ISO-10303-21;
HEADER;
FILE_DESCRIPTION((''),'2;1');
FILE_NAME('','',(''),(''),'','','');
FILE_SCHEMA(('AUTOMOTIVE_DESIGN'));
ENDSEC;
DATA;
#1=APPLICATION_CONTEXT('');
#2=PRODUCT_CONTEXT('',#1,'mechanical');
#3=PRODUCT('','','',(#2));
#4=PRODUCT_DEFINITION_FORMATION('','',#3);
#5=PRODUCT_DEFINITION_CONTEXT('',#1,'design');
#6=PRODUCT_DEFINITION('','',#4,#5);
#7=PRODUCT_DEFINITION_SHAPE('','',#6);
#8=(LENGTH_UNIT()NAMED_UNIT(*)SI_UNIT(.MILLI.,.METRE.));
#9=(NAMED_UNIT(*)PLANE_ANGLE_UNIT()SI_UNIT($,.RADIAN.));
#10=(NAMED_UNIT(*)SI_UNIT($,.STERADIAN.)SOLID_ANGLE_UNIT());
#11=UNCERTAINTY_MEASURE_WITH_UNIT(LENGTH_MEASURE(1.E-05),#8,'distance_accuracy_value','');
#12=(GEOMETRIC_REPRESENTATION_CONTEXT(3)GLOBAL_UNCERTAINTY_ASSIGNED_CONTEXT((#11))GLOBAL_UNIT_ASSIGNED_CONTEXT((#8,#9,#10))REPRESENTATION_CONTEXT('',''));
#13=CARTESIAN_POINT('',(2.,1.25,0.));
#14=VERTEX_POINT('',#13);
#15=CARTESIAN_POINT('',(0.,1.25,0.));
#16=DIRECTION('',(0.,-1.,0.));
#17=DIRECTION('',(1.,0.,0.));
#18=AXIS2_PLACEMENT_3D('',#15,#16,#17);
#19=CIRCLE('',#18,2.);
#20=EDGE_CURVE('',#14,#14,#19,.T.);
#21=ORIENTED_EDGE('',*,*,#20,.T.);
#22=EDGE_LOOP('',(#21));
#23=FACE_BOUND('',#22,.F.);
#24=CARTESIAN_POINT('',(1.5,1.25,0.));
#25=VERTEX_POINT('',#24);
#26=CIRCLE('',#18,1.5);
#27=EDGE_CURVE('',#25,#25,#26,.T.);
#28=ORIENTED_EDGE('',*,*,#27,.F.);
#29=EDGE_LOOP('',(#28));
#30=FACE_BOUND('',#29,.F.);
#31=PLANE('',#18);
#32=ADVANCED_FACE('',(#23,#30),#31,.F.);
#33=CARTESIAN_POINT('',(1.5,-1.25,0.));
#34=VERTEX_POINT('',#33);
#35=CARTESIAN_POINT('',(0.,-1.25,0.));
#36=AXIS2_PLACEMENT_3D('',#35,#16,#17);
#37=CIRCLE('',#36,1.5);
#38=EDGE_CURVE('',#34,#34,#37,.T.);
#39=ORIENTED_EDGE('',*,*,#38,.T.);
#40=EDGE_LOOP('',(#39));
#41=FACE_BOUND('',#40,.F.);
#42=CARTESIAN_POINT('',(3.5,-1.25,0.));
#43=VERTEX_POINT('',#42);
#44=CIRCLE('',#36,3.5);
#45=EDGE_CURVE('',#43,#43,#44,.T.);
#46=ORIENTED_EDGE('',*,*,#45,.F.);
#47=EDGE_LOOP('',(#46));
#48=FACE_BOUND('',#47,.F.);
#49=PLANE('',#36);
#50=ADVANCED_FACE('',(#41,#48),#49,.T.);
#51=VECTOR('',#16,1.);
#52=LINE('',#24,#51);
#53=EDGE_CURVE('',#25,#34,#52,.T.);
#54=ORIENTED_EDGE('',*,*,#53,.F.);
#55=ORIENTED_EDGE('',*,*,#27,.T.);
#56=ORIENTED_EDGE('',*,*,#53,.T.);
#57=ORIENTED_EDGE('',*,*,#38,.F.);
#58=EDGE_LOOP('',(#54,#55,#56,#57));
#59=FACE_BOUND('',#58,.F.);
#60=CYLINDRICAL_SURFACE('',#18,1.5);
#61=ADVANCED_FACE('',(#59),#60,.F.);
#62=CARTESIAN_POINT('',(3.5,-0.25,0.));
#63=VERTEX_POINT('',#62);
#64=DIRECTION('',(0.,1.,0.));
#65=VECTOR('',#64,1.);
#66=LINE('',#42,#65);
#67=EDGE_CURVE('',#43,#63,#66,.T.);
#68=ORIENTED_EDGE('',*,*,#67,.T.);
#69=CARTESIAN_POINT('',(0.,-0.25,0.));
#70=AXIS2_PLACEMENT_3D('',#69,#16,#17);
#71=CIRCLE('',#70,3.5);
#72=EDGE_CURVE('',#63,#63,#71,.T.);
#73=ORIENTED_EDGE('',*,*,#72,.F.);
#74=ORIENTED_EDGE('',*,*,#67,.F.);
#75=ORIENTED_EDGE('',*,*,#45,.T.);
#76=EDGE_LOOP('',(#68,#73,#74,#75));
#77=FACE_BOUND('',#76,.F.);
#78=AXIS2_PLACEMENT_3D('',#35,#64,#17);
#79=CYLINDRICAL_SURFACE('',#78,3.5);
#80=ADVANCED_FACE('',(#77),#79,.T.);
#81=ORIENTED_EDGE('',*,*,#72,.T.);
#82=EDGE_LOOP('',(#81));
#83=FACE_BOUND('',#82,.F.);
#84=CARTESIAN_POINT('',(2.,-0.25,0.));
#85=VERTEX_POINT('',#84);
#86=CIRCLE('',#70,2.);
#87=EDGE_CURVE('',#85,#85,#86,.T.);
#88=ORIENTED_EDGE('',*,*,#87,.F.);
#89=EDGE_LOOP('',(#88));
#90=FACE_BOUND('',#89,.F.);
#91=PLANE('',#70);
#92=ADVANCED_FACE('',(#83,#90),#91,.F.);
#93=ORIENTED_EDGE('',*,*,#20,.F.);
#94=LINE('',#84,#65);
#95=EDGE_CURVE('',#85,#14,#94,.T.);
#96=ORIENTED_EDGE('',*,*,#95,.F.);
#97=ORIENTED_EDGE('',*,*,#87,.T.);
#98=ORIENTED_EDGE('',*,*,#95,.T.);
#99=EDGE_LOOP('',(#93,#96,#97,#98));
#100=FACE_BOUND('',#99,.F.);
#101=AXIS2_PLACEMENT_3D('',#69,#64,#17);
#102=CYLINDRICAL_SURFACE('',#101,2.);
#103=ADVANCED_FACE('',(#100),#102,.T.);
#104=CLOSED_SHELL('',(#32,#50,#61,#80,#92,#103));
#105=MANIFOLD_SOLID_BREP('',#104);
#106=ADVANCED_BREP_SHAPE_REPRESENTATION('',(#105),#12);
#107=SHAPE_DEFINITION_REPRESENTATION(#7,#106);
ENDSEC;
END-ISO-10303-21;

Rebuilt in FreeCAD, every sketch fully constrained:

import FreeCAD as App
import Part
import Sketcher

V = App.Vector
Q = App.Units.Quantity


def add_polygon(sketch, points):
    """Adds a closed chain of lines whose ends are joined by coincident constraints."""
    first, n = sketch.GeometryCount, len(points)
    for a, b in zip(points, points[1:] + points[:1]):
        sketch.addGeometry(Part.LineSegment(App.Vector(*a, 0), App.Vector(*b, 0)), False)
    for i in range(n):
        sketch.addConstraint(Sketcher.Constraint("Coincident", first + i, 2, first + (i + 1) % n, 1))

doc = App.newDocument("Part")
body = doc.addObject("PartDesign::Body", "Body")

sketch1 = doc.addObject("Sketcher::SketchObject", "Sketch")
body.addObject(sketch1)
sketch1.AttachmentSupport = (doc.XY_Plane, [""])
sketch1.MapMode = "FlatFace"
add_polygon(sketch1, [(2, 1.2), (1.5, 1.2), (1.5, -1.2), (3.5, -1.2), (3.5, -0.2), (2, -0.2)])
sketch1.addConstraint([
    Sketcher.Constraint("Horizontal", 0),
    Sketcher.Constraint("Vertical", 1),
    Sketcher.Constraint("Horizontal", 2),
    Sketcher.Constraint("Vertical", 3),
    Sketcher.Constraint("Horizontal", 4),
    Sketcher.Constraint("Vertical", 5),
    Sketcher.Constraint("Equal", 4, 5),
    Sketcher.Constraint("DistanceY", 3, 1, 3, 2, Q("1 mm")),
    Sketcher.Constraint("DistanceX", 4, 2, 4, 1, Q("1.5 mm")),
    Sketcher.Constraint("DistanceX", -1, 1, 0, 2, Q("1.5 mm")),
    Sketcher.Constraint("DistanceX", 2, 1, 2, 2, Q("2 mm")),
    Sketcher.Constraint("DistanceY", -1, 1, 0, 2, Q("1.25 mm")),
])
revolution = doc.addObject("PartDesign::Revolution", "Revolution")
body.addObject(revolution)
revolution.Profile = sketch1
revolution.ReferenceAxis = (sketch1, ["V_Axis"])
revolution.Angle = 360

doc.recompute()
